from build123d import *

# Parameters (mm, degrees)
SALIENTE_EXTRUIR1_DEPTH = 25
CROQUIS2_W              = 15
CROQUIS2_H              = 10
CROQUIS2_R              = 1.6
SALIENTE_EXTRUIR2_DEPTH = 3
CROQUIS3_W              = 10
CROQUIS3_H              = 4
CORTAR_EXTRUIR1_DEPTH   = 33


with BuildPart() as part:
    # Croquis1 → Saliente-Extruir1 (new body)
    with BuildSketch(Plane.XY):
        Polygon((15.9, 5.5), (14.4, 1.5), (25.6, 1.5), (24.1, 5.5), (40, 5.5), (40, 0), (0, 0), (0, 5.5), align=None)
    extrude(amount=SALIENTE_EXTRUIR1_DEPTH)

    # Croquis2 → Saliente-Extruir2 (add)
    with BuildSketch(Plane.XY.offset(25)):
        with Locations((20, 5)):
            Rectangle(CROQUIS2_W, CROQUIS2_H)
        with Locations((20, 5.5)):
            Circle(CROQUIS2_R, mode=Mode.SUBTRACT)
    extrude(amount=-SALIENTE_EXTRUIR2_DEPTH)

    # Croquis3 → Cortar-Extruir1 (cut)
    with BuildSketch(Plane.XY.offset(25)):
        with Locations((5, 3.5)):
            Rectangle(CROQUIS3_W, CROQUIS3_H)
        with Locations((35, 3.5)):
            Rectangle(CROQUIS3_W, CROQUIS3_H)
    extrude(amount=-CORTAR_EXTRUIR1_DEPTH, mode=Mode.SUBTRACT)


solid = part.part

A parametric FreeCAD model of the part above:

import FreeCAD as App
import Part
import Sketcher

V = App.Vector
Q = App.Units.Quantity


def add_polygon(sketch, points):
    """Adds a closed chain of lines whose ends are joined by coincident constraints."""
    first, n = sketch.GeometryCount, len(points)
    for a, b in zip(points, points[1:] + points[:1]):
        sketch.addGeometry(Part.LineSegment(App.Vector(*a, 0), App.Vector(*b, 0)), False)
    for i in range(n):
        sketch.addConstraint(Sketcher.Constraint("Coincident", first + i, 2, first + (i + 1) % n, 1))

doc = App.newDocument("Part")
params = doc.addObject("Spreadsheet::Sheet", "Params")
for row, (alias, value) in enumerate([
    ("sketch1_width", "40 mm"),
    ("sketch1_width2", "15.9 mm"),
    ("sketch1_width3", "11.2 mm"),
    ("sketch1_height", "5.5 mm"),
    ("pad1_length", "25 mm"),
    ("sketch2_diameter", "3.2 mm"),
    ("sketch2_width", "15 mm"),
    ("sketch2_height", "10 mm"),
    ("pad2_length", "3 mm"),
    ("sketch3_width", "10 mm"),
    ("sketch3_height", "4 mm"),
    ("pocket1_length", "33 mm"),
], start=1):
    params.set(f"A{row}", alias)
    params.set(f"B{row}", "=" + value)
    params.setAlias(f"B{row}", alias)

body = doc.addObject("PartDesign::Body", "Body")

# Sketch on XY plane
sketch1 = body.newObject("Sketcher::SketchObject", "Sketch")
sketch1.AttachmentSupport = (doc.getObject("XY_Plane"), [""])
sketch1.MapMode = "FlatFace"
add_polygon(sketch1, [(14.4, 1.5), (15.9, 5.5), (0, 5.5), (0, 0), (40, 0), (40, 5.5), (24.1, 5.5), (25.6, 1.5)])  # lines 0-7
sketch1.addConstraint([
    Sketcher.Constraint("Horizontal", 1),
    Sketcher.Constraint("Vertical", 2),
    Sketcher.Constraint("Horizontal", 3),
    Sketcher.Constraint("Vertical", 4),
    Sketcher.Constraint("Horizontal", 5),
    Sketcher.Constraint("Horizontal", 7),
    Sketcher.Constraint("Coincident", 2, 2, -1, 1),
    Sketcher.Constraint("Horizontal", 1, 2, 4, 2),
    Sketcher.Constraint("Equal", 1, 5),
    Sketcher.Constraint("Equal", 0, 6),
    Sketcher.Constraint("DistanceX", 3, 1, 3, 2, Q("40 mm")),
    Sketcher.Constraint("DistanceX", 1, 2, 1, 1, Q("15.9 mm")),
    Sketcher.Constraint("DistanceX", 7, 2, 7, 1, Q("11.2 mm")),
    Sketcher.Constraint("DistanceY", 2, 2, 2, 1, Q("5.5 mm")),
    Sketcher.Constraint("DistanceY", 6, 2, 5, 2, Q("4 mm")),
])
sketch1.setExpression("Constraints[18]", "Params.sketch1_width")
sketch1.setExpression("Constraints[19]", "Params.sketch1_width2")
sketch1.setExpression("Constraints[20]", "Params.sketch1_width3")
sketch1.setExpression("Constraints[21]", "Params.sketch1_height")
pad1 = body.newObject("PartDesign::Pad", "Pad")
pad1.Profile = sketch1
pad1.setExpression("Length", "Params.pad1_length")

# Sketch on XY plane
sketch2 = body.newObject("Sketcher::SketchObject", "Sketch001")
sketch2.AttachmentSupport = (doc.getObject("XY_Plane"), [""])
sketch2.MapMode = "FlatFace"
sketch2.AttachmentOffset = App.Placement(V(0, 0, 25), App.Rotation())
add_polygon(sketch2, [(12.5, 10), (12.5, 0), (27.5, 0), (27.5, 10)])  # lines 0-3
sketch2.addGeometry(Part.Circle(V(20, 5.5, 0), V(0, 0, 1), 1.6), False)  # 4
sketch2.addConstraint([
    Sketcher.Constraint("Vertical", 0),
    Sketcher.Constraint("Horizontal", 1),
    Sketcher.Constraint("Vertical", 2),
    Sketcher.Constraint("Horizontal", 3),
    Sketcher.Constraint("PointOnObject", 0, 2, -1),
    Sketcher.Constraint("Diameter", 4, Q("3.2 mm")),
    Sketcher.Constraint("DistanceX", 1, 1, 1, 2, Q("15 mm")),
    Sketcher.Constraint("DistanceY", 0, 2, 0, 1, Q("10 mm")),
    Sketcher.Constraint("DistanceX", -1, 1, 4, 3, Q("20 mm")),
    Sketcher.Constraint("DistanceY", -1, 1, 4, 3, Q("5.5 mm")),
    Sketcher.Constraint("DistanceX", -1, 1, 0, 2, Q("12.5 mm")),
])
sketch2.setExpression("Constraints[9]", "Params.sketch2_diameter")
sketch2.setExpression("Constraints[10]", "Params.sketch2_width")
sketch2.setExpression("Constraints[11]", "Params.sketch2_height")
pad2 = body.newObject("PartDesign::Pad", "Pad001")
pad2.Profile = sketch2
pad2.setExpression("Length", "Params.pad2_length")
pad2.Reversed = True

# Sketch on XY plane
sketch3 = body.newObject("Sketcher::SketchObject", "Sketch002")
sketch3.AttachmentSupport = (doc.getObject("XY_Plane"), [""])
sketch3.MapMode = "FlatFace"
sketch3.AttachmentOffset = App.Placement(V(0, 0, 25), App.Rotation())
add_polygon(sketch3, [(0, 5.5), (0, 1.5), (10, 1.5), (10, 5.5)])  # lines 0-3
add_polygon(sketch3, [(30, 5.5), (30, 1.5), (40, 1.5), (40, 5.5)])  # lines 4-7
sketch3.addConstraint([
    Sketcher.Constraint("Vertical", 0),
    Sketcher.Constraint("Horizontal", 1),
    Sketcher.Constraint("Vertical", 2),
    Sketcher.Constraint("Horizontal", 3),
    Sketcher.Constraint("Vertical", 4),
    Sketcher.Constraint("Horizontal", 5),
    Sketcher.Constraint("Vertical", 6),
    Sketcher.Constraint("Horizontal", 7),
    Sketcher.Constraint("PointOnObject", 0, 2, -2),
    Sketcher.Constraint("Horizontal", 1, 2, 4, 2),
    Sketcher.Constraint("Horizontal", 3, 2, 6, 2),
    Sketcher.Constraint("Equal", 3, 5),
    Sketcher.Constraint("DistanceX", 1, 1, 1, 2, Q("10 mm")),
    Sketcher.Constraint("DistanceY", 0, 2, 0, 1, Q("4 mm")),
    Sketcher.Constraint("DistanceX", -1, 1, 4, 2, Q("30 mm")),
    Sketcher.Constraint("DistanceY", -1, 1, 0, 2, Q("1.5 mm")),
])
sketch3.setExpression("Constraints[20]", "Params.sketch3_width")
sketch3.setExpression("Constraints[21]", "Params.sketch3_height")
pocket1 = body.newObject("PartDesign::Pocket", "Pocket")
pocket1.Profile = sketch3
pocket1.setExpression("Length", "Params.pocket1_length")

doc.recompute()
